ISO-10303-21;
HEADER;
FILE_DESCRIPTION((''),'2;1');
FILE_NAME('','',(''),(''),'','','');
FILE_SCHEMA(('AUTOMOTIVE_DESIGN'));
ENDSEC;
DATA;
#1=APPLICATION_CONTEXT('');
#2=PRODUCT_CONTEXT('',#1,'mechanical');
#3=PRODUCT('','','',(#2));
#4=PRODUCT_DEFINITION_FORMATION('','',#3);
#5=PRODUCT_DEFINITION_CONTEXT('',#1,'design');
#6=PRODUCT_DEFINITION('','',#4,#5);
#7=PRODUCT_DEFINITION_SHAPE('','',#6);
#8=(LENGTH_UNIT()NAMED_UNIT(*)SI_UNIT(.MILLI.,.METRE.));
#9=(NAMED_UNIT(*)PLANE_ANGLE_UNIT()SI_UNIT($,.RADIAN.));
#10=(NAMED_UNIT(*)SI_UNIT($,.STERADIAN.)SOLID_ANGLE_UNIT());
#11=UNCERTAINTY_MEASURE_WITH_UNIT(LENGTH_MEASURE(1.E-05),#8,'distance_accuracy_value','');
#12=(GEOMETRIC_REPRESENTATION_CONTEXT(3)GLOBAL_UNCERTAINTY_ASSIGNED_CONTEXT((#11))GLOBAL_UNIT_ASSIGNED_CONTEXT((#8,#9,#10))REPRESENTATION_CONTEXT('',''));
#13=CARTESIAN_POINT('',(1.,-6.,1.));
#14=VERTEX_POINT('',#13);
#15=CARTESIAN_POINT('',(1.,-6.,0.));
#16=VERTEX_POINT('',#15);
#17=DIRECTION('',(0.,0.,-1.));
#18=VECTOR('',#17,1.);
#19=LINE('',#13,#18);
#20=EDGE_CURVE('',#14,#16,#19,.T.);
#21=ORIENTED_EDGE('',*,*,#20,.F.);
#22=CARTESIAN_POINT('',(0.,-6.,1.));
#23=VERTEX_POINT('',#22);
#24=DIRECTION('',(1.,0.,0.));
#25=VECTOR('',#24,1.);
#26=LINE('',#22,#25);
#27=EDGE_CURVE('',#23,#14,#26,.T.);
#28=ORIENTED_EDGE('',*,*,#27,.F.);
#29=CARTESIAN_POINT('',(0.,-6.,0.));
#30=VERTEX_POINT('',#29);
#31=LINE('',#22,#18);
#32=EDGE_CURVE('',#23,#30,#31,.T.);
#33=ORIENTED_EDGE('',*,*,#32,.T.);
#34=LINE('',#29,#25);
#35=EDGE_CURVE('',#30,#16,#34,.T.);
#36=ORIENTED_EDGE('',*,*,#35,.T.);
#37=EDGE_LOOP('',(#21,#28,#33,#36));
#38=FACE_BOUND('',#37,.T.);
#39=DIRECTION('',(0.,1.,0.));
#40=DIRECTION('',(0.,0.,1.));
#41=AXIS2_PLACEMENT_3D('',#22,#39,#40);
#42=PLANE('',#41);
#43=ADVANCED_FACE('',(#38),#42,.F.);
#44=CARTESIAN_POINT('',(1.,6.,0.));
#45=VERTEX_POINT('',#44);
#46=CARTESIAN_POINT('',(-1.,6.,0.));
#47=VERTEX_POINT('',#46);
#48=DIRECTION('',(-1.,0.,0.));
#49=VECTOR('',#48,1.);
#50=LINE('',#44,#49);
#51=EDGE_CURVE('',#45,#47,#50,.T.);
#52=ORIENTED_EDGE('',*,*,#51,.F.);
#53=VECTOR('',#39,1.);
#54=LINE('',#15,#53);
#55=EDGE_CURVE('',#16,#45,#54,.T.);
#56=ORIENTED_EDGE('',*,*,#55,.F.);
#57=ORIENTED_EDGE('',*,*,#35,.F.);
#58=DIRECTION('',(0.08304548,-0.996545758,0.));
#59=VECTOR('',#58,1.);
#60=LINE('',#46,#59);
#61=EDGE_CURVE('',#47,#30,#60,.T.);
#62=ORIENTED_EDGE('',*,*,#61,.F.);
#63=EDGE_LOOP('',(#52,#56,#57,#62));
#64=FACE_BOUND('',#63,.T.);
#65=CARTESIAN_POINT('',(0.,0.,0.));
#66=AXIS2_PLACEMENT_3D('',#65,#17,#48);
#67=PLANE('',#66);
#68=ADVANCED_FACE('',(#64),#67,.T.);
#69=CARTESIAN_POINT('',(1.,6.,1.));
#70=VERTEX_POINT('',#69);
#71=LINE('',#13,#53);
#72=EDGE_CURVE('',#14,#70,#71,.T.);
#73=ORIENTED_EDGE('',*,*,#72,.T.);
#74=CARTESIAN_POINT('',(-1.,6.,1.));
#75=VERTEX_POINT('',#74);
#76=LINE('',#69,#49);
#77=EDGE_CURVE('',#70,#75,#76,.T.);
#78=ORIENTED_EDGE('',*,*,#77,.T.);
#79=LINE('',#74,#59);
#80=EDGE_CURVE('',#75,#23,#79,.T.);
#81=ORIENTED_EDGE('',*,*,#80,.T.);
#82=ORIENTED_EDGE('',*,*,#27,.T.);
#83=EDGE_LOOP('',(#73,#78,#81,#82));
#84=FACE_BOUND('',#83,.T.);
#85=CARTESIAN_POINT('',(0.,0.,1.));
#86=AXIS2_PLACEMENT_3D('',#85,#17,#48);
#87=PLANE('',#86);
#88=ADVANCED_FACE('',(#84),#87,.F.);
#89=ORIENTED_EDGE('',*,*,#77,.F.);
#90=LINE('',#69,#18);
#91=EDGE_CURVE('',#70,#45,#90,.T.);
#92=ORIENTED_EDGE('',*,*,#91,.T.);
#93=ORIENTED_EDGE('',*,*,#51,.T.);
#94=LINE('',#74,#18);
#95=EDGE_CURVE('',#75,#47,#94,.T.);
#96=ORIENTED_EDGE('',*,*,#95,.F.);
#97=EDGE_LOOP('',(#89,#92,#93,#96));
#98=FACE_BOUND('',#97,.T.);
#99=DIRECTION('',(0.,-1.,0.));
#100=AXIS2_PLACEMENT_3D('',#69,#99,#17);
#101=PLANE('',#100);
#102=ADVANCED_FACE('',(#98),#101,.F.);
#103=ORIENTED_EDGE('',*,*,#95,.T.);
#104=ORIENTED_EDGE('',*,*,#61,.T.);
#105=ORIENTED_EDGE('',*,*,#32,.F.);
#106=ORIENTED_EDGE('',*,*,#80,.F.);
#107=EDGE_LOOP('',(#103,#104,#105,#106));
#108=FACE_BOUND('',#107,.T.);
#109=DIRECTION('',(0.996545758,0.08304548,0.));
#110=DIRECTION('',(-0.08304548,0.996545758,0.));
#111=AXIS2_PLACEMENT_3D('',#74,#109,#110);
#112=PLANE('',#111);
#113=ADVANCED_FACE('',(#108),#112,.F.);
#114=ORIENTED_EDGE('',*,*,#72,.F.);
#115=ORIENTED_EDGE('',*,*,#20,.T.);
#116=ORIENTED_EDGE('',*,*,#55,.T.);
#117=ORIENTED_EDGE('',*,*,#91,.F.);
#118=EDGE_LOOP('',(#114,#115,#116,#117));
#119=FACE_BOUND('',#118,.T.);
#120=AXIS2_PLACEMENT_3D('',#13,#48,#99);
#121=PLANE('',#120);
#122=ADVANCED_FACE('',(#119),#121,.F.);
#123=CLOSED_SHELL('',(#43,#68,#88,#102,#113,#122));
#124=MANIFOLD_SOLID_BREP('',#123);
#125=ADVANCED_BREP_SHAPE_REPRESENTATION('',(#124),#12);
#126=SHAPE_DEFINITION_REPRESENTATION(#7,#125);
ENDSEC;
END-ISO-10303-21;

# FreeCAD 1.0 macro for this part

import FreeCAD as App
import Part
import Sketcher
from FreeCAD import Vector
Q = App.Units.Quantity

doc = App.newDocument("Part")
body = doc.addObject("PartDesign::Body", "Body")

sketch1 = body.newObject("Sketcher::SketchObject", "Sketch")
sketch1.AttachmentSupport = (doc.getObject("XY_Plane"), [""])
sketch1.MapMode = "FlatFace"
sketch1.addGeometry([
    Part.LineSegment(Vector(-1, 6, 0), Vector(0, -6, 0)),
    Part.LineSegment(Vector(0, -6, 0), Vector(1, -6, 0)),
    Part.LineSegment(Vector(1, -6, 0), Vector(1, 6, 0)),
    Part.LineSegment(Vector(1, 6, 0), Vector(-1, 6, 0)),
], False)
sketch1.addConstraint([
    Sketcher.Constraint("Coincident", 0, 2, 1, 1),
    Sketcher.Constraint("Coincident", 1, 2, 2, 1),
    Sketcher.Constraint("Coincident", 2, 2, 3, 1),
    Sketcher.Constraint("Coincident", 3, 2, 0, 1),
    Sketcher.Constraint("Horizontal", 1),
    Sketcher.Constraint("Vertical", 2),
    Sketcher.Constraint("Horizontal", 3),
    Sketcher.Constraint("Symmetric", 1, 2, 3, 2, -1, 1),
    Sketcher.Constraint("PointOnObject", 0, 2, -2),
    Sketcher.Constraint("DistanceX", 1, 1, 1, 2, Q("1 mm")),
    Sketcher.Constraint("DistanceY", 2, 1, 2, 2, Q("12 mm")),
])
pad1 = body.newObject("PartDesign::Pad", "Pad")
pad1.Profile = sketch1
pad1.Length = 1

doc.recompute()
